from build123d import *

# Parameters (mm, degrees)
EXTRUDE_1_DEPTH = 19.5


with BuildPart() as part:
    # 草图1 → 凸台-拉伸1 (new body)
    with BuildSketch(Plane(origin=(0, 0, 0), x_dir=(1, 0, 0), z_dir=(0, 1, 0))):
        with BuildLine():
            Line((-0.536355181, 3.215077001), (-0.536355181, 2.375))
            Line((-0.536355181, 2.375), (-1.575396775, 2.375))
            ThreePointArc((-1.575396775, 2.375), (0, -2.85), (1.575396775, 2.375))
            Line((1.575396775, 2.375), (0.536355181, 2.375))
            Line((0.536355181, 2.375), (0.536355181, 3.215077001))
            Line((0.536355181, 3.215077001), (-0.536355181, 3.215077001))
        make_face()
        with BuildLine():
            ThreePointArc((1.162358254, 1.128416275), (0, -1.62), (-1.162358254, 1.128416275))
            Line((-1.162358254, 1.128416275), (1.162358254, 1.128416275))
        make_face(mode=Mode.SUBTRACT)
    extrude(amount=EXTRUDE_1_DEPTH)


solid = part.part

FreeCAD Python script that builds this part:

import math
import FreeCAD as App
import Part
import Sketcher

V = App.Vector

doc = App.newDocument("Part")
body = doc.addObject("PartDesign::Body", "Body")

# Sketch on XZ plane
sketch1 = doc.addObject("Sketcher::SketchObject", "Sketch")
body.addObject(sketch1)
sketch1.AttachmentSupport = (doc.XZ_Plane, [""])
sketch1.MapMode = "FlatFace"
sketch1.addGeometry([
    Part.LineSegment(V(-0.5, -3.2, 0), V(-0.5, -2.4, 0)),  # 0
    Part.LineSegment(V(-0.5, -2.4, 0), V(-1.6, -2.4, 0)),  # 1
    Part.ArcOfCircle(Part.Circle(V(0, 0, 0), V(0, 0, 1), 2.9), math.radians(-56), math.radians(236)),  # 2
    Part.LineSegment(V(1.6, -2.4, 0), V(0.5, -2.4, 0)),  # 3
    Part.LineSegment(V(0.5, -2.4, 0), V(0.5, -3.2, 0)),  # 4
    Part.LineSegment(V(0.5, -3.2, 0), V(-0.5, -3.2, 0)),  # 5
    Part.LineSegment(V(-1.2, -1.1, 0), V(1.2, -1.1, 0)),  # 6
    Part.ArcOfCircle(Part.Circle(V(0, 0, 0), V(0, 0, 1), 1.6), math.radians(-44), math.radians(224)),  # 7
], False)
sketch1.addConstraint([
    Sketcher.Constraint("Coincident", 0, 2, 1, 1),
    Sketcher.Constraint("Coincident", 1, 2, 2, 2),
    Sketcher.Constraint("Coincident", 2, 1, 3, 1),
    Sketcher.Constraint("Coincident", 3, 2, 4, 1),
    Sketcher.Constraint("Coincident", 4, 2, 5, 1),
    Sketcher.Constraint("Coincident", 5, 2, 0, 1),
    Sketcher.Constraint("Coincident", 6, 1, 7, 2),
    Sketcher.Constraint("Coincident", 7, 1, 6, 2),
    Sketcher.Constraint("Vertical", 0),
    Sketcher.Constraint("Horizontal", 1),
    Sketcher.Constraint("Horizontal", 3),
    Sketcher.Constraint("Vertical", 4),
    Sketcher.Constraint("Horizontal", 5),
    Sketcher.Constraint("Horizontal", 6),
    Sketcher.Constraint("Coincident", 2, 3, -1, 1),
    Sketcher.Constraint("Coincident", 7, 3, -1, 1),
    Sketcher.Constraint("Symmetric", 0, 2, 3, 2, -2),
    Sketcher.Constraint("Radius", 2, 2.85),
    Sketcher.Constraint("Radius", 7, 1.62),
    Sketcher.Constraint("DistanceY", 0, 2, -1, 1, 2.375),
    Sketcher.Constraint("DistanceX", 1, 2, 1, 1, 1.039042),
    Sketcher.Constraint("DistanceX", 6, 1, 6, 2, 2.324717),
    Sketcher.Constraint("DistanceY", 0, 1, 0, 2, 0.840077),
])
pad1 = doc.addObject("PartDesign::Pad", "Pad")
body.addObject(pad1)
pad1.Profile = sketch1
pad1.Length = 19.5
pad1.Reversed = True

doc.recompute()
